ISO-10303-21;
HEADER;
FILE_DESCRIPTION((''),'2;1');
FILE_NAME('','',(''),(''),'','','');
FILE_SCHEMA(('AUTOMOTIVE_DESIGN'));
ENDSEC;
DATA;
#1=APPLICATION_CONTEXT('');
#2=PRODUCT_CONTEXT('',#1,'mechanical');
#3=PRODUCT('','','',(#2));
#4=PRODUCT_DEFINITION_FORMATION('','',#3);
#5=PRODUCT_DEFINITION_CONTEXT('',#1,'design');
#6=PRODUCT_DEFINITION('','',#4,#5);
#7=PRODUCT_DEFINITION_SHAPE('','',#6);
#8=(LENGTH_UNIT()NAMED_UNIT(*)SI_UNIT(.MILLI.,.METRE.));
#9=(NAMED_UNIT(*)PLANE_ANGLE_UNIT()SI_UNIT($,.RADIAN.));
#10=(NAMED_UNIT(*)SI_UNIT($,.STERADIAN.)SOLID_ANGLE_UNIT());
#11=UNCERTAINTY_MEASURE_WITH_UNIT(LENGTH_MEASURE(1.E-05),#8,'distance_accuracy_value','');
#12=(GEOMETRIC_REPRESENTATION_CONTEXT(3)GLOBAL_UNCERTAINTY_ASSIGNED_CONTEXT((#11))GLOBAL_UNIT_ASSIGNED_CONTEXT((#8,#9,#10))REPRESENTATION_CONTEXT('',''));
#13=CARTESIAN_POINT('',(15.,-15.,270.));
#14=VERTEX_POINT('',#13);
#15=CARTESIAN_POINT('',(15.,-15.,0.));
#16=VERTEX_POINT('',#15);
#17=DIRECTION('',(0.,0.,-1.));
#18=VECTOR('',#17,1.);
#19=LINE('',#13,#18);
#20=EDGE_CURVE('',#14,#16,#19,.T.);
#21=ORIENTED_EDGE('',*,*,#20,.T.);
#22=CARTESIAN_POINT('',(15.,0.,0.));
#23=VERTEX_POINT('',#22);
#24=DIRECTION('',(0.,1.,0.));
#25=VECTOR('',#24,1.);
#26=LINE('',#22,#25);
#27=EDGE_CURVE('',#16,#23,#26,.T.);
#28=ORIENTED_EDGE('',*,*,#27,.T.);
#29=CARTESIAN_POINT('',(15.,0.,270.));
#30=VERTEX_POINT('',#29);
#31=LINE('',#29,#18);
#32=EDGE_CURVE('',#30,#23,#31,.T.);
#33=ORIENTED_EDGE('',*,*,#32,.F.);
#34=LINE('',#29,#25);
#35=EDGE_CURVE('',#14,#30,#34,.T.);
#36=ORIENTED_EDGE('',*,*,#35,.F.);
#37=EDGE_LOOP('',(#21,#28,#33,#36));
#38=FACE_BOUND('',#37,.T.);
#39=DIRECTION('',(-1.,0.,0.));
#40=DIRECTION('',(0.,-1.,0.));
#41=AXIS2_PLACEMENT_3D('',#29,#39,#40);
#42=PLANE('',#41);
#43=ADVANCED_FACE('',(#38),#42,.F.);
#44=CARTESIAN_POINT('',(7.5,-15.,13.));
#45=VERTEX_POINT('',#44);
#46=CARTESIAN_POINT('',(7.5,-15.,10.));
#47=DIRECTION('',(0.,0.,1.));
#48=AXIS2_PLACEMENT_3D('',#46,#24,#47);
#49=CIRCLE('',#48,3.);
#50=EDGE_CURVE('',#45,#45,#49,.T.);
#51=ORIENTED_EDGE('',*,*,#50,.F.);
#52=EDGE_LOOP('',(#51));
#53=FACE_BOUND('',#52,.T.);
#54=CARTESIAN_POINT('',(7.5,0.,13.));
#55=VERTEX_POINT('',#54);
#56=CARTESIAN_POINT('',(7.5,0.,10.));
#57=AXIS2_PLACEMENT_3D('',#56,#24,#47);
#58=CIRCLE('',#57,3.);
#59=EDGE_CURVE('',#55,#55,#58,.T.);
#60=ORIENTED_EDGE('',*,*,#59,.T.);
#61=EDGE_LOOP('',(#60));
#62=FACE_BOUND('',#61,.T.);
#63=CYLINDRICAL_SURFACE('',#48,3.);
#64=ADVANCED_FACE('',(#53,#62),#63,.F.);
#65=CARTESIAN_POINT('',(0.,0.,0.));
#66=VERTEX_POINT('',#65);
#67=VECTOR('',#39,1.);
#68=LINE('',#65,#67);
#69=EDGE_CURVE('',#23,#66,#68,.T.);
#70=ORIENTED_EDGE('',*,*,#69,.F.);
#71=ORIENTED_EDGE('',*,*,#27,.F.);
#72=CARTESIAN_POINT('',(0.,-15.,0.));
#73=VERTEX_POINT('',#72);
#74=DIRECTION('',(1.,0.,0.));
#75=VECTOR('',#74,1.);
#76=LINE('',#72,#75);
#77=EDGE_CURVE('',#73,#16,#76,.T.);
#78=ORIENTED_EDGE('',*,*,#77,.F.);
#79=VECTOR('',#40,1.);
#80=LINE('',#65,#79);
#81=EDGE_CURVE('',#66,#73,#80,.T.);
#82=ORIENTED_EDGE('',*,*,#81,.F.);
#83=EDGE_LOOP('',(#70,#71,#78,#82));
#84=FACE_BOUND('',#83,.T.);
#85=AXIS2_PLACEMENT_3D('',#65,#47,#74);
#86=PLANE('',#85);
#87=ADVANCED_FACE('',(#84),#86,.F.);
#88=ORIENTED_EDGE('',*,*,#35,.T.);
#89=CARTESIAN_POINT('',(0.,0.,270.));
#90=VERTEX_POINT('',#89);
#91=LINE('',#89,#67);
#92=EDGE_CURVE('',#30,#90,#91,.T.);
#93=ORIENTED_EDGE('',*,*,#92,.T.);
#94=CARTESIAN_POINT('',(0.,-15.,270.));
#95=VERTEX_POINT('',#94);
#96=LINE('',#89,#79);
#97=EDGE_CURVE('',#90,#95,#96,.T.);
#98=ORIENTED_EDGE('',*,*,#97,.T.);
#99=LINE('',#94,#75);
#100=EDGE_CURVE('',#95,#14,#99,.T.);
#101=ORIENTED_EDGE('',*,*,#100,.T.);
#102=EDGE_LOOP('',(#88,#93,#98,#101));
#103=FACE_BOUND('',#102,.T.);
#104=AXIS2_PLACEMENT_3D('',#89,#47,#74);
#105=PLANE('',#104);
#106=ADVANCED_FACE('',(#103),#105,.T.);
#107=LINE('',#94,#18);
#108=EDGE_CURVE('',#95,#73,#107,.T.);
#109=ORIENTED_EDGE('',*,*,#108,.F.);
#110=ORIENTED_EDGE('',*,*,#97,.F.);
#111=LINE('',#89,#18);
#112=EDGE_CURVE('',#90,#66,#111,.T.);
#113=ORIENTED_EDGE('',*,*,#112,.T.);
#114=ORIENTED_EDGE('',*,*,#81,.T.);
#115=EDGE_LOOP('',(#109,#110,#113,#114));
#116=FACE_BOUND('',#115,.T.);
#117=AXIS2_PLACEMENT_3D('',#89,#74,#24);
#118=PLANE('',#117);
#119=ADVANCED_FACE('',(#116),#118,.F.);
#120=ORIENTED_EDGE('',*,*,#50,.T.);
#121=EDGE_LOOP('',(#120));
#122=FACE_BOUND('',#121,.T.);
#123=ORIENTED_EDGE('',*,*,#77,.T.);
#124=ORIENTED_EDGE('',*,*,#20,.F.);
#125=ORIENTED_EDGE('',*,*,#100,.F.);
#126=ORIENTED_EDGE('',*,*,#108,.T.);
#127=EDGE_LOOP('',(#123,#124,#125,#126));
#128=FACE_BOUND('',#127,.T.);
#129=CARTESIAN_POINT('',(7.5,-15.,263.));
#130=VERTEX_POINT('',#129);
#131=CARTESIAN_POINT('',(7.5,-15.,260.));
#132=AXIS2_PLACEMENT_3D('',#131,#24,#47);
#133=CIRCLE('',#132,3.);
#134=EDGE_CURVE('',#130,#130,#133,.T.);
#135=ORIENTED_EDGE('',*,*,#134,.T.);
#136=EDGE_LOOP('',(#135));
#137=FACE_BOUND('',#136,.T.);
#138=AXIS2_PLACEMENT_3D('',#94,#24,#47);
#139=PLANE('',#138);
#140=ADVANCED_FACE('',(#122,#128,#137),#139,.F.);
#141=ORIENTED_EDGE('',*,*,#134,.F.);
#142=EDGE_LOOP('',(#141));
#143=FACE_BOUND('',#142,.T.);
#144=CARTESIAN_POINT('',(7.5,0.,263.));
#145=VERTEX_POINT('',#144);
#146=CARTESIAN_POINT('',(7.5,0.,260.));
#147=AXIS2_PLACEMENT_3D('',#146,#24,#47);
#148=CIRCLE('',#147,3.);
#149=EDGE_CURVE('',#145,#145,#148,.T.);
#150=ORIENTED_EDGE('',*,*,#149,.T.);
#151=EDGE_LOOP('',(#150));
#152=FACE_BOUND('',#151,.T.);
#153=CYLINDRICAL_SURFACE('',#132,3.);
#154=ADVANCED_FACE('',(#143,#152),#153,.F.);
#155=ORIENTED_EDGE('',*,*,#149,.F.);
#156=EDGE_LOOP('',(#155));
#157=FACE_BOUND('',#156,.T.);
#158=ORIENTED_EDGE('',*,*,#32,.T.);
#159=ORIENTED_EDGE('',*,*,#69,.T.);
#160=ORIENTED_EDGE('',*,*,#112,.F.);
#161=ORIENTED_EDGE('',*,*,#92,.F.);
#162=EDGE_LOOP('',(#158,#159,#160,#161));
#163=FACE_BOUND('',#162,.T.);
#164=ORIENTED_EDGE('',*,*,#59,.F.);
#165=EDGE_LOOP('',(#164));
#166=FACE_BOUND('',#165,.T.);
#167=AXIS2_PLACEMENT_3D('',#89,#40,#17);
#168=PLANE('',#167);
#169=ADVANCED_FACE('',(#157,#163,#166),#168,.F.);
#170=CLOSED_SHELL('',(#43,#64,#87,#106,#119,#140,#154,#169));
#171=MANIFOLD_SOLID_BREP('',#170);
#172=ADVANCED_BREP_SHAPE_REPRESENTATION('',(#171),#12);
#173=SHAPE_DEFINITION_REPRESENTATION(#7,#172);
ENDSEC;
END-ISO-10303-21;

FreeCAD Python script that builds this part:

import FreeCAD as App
import Part
import Sketcher

V = App.Vector

doc = App.newDocument("Part")
params = doc.addObject("Spreadsheet::Sheet", "Params")
for row, (alias, value) in enumerate([
    ("sketch1_width", "15 mm"),
    ("pad1_length", "270 mm"),
    ("sketch2_diameter", "6 mm"),
], start=1):
    params.set(f"A{row}", alias)
    params.set(f"B{row}", "=" + value)
    params.setAlias(f"B{row}", alias)

body = doc.addObject("PartDesign::Body", "Body")

# Sketch on XY plane
sketch1 = body.newObject("Sketcher::SketchObject", "Sketch")
sketch1.AttachmentSupport = (doc.getObject("XY_Plane"), [""])
sketch1.MapMode = "FlatFace"
sketch1.addGeometry([
    Part.LineSegment(V(0, 0, 0), V(0, -15, 0)),
    Part.LineSegment(V(0, -15, 0), V(15, -15, 0)),
    Part.LineSegment(V(15, -15, 0), V(15, 0, 0)),
    Part.LineSegment(V(15, 0, 0), V(0, 0, 0)),
], False)
sketch1.addConstraint([
    Sketcher.Constraint("Coincident", 0, 2, 1, 1),
    Sketcher.Constraint("Coincident", 1, 2, 2, 1),
    Sketcher.Constraint("Coincident", 2, 2, 3, 1),
    Sketcher.Constraint("Coincident", 3, 2, 0, 1),
    Sketcher.Constraint("Vertical", 0),
    Sketcher.Constraint("Horizontal", 1),
    Sketcher.Constraint("Vertical", 2),
    Sketcher.Constraint("Horizontal", 3),
    Sketcher.Constraint("Coincident", 3, 2, -1, 1),
    Sketcher.Constraint("Equal", 3, 0),
    Sketcher.Constraint("DistanceX", 1, 1, 1, 2, 15.0),
])
sketch1.setExpression("Constraints[10]", "Params.sketch1_width")
pad1 = body.newObject("PartDesign::Pad", "Pad")
pad1.Profile = sketch1
pad1.setExpression("Length", "Params.pad1_length")

# Sketch on XZ plane
sketch2 = body.newObject("Sketcher::SketchObject", "Sketch001")
sketch2.AttachmentSupport = (doc.getObject("XZ_Plane"), [""])
sketch2.MapMode = "FlatFace"
sketch2.addGeometry([
    Part.Circle(V(7.5, 10, 0), V(0, 0, 1), 3),
    Part.Circle(V(7.5, 260, 0), V(0, 0, 1), 3),
], False)
sketch2.addConstraint([
    Sketcher.Constraint("Equal", 0, 1),
    Sketcher.Constraint("Vertical", 0, 3, 1, 3),
    Sketcher.Constraint("Diameter", 0, 6.0),
    Sketcher.Constraint("DistanceY", -1, 1, 0, 3, 10.0),
    Sketcher.Constraint("DistanceY", -1, 1, 1, 3, 260.0),
    Sketcher.Constraint("DistanceX", -1, 1, 0, 3, 7.5),
])
sketch2.setExpression("Constraints[2]", "Params.sketch2_diameter")
pocket1 = body.newObject("PartDesign::Pocket", "Pocket")
pocket1.Profile = sketch2
pocket1.Type = "ThroughAll"
pocket1.Reversed = True

doc.recompute()
